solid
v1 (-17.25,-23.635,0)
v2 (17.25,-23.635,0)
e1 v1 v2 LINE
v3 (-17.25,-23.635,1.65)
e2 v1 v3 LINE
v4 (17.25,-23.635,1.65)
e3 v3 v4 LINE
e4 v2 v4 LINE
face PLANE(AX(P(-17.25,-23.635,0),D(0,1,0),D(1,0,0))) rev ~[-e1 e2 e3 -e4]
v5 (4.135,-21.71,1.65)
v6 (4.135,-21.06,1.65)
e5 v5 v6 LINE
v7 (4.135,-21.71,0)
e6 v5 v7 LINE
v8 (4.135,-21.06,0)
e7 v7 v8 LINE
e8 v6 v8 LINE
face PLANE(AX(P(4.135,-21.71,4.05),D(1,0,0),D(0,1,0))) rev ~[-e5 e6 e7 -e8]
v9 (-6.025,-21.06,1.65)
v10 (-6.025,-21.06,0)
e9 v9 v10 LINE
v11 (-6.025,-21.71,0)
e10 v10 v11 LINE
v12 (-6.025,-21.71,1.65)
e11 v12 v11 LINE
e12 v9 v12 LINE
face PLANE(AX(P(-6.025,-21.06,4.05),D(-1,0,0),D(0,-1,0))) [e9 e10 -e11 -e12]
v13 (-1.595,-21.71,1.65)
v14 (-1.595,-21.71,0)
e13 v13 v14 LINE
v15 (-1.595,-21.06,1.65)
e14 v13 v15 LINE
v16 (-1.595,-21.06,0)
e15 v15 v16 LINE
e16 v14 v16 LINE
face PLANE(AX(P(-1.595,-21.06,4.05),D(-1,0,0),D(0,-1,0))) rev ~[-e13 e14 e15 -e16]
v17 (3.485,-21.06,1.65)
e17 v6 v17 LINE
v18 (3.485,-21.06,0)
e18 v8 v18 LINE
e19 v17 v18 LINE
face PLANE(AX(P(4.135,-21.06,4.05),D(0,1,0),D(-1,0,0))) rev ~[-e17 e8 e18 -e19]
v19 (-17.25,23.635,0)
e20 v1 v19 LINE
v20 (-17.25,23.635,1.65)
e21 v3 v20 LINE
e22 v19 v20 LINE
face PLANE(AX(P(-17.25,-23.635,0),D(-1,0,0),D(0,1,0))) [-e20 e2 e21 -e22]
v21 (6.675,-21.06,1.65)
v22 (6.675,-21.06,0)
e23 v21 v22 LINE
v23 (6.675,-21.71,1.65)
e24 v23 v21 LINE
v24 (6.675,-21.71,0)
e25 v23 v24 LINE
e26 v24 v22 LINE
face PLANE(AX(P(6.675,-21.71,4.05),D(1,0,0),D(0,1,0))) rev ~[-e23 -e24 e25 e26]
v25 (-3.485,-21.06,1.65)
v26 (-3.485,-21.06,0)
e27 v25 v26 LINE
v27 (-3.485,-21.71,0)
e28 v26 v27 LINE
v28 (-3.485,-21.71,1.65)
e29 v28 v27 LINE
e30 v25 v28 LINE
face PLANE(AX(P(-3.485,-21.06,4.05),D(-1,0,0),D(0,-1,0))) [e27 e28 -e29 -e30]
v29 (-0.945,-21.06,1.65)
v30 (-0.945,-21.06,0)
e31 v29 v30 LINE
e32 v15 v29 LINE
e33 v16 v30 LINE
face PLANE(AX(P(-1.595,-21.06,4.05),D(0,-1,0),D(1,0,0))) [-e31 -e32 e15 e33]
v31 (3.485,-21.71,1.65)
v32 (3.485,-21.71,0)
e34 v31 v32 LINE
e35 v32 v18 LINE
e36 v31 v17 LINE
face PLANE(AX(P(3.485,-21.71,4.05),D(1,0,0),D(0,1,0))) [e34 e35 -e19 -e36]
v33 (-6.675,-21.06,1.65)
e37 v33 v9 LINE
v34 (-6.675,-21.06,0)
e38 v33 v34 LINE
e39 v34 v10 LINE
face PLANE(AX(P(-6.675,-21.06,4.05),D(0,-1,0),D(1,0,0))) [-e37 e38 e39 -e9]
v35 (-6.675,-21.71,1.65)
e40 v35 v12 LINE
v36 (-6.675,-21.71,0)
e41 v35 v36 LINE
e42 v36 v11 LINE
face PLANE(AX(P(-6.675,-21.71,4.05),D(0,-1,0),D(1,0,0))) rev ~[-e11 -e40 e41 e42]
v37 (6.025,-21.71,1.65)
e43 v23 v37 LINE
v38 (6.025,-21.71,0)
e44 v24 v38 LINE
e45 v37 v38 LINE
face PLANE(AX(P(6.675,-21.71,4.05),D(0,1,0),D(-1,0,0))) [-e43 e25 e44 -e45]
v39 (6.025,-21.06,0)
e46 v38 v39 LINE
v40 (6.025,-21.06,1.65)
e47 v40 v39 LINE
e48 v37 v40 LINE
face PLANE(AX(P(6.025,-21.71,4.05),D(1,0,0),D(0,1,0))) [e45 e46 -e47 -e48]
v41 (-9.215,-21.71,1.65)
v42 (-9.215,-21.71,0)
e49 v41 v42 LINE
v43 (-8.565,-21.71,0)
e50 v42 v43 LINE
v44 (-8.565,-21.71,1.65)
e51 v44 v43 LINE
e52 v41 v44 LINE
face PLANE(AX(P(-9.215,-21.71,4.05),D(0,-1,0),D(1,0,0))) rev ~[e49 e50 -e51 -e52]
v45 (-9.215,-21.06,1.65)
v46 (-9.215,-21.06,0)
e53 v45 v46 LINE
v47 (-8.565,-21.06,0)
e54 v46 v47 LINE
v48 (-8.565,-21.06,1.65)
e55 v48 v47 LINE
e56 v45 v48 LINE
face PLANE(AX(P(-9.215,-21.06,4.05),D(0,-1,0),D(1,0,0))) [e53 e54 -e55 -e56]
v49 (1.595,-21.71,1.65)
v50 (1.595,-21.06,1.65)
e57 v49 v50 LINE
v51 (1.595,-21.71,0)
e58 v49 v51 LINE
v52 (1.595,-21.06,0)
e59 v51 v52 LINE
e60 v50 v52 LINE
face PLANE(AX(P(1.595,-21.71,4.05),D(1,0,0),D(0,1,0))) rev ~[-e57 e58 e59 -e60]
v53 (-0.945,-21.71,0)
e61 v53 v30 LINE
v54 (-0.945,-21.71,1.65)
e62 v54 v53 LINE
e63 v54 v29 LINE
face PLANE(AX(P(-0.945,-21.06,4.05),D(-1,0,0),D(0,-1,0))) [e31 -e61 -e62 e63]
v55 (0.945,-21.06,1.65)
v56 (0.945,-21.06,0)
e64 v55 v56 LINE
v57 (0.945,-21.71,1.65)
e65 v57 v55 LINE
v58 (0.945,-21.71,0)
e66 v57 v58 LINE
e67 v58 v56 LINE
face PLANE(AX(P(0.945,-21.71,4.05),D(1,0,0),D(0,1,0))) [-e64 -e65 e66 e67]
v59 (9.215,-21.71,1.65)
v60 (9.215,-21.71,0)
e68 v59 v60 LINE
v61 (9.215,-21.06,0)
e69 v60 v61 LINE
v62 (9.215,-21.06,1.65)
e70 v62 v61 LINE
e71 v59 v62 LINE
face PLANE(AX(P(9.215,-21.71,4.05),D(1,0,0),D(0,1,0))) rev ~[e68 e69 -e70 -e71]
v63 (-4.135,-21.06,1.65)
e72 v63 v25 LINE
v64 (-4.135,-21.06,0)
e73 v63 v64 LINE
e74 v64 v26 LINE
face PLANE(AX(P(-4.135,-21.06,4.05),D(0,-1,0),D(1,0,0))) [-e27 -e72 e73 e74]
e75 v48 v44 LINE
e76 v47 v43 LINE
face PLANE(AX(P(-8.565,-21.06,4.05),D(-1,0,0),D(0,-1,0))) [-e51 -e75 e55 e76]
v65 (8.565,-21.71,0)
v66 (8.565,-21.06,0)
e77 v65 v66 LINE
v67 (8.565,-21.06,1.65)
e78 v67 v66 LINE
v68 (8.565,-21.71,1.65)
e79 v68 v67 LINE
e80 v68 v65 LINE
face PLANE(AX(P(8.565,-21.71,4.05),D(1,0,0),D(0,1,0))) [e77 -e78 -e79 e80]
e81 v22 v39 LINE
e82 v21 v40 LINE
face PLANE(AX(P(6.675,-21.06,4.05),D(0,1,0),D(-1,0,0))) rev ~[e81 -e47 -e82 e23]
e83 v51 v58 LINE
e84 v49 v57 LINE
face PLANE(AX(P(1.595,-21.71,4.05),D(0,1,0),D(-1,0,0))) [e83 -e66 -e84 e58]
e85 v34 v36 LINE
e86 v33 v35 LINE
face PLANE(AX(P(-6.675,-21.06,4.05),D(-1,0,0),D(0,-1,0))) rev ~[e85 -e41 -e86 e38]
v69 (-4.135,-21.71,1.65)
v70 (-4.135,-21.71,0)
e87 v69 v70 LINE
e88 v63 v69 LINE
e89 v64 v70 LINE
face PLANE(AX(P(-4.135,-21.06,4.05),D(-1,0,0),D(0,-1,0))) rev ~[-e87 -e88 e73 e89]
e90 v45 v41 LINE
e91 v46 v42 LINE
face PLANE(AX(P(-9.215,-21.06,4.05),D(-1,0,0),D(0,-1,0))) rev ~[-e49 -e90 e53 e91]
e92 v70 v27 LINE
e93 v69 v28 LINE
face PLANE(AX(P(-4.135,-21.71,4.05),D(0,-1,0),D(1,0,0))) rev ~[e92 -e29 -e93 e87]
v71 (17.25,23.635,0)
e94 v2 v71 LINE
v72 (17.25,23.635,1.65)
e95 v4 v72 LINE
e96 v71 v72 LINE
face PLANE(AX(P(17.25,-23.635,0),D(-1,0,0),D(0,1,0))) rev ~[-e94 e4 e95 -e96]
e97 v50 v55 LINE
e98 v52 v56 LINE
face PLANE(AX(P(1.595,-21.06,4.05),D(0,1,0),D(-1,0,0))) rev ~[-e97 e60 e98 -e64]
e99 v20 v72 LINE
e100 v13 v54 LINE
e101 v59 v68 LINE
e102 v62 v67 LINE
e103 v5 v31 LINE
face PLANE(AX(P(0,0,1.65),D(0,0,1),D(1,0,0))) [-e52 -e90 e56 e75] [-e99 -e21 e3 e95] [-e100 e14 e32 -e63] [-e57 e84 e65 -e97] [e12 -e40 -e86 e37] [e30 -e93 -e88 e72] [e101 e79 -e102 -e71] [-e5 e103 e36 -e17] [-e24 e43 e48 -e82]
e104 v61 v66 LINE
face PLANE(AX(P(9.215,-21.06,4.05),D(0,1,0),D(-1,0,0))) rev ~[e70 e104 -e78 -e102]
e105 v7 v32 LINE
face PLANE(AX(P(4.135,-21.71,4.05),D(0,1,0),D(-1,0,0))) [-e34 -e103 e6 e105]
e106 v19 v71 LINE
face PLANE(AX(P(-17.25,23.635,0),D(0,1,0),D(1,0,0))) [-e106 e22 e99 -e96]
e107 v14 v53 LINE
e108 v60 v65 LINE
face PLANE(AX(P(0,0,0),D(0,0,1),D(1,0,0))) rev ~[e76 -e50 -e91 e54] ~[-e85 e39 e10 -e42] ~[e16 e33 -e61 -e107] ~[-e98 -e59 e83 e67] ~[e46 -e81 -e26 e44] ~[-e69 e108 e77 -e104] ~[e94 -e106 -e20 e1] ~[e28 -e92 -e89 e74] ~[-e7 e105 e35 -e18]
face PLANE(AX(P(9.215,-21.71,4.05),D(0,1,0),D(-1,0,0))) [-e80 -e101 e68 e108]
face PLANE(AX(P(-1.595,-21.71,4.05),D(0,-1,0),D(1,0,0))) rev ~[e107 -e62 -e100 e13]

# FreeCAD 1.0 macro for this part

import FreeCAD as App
import Part
import Sketcher

V = App.Vector
Q = App.Units.Quantity


def add_polygon(sketch, points):
    """Adds a closed chain of lines whose ends are joined by coincident constraints."""
    first, n = sketch.GeometryCount, len(points)
    for a, b in zip(points, points[1:] + points[:1]):
        sketch.addGeometry(Part.LineSegment(App.Vector(*a, 0), App.Vector(*b, 0)), False)
    for i in range(n):
        sketch.addConstraint(Sketcher.Constraint("Coincident", first + i, 2, first + (i + 1) % n, 1))

doc = App.newDocument("Part")
body = doc.addObject("PartDesign::Body", "Body")

# Sketch on XY plane
sketch1 = body.newObject("Sketcher::SketchObject", "Sketch")
sketch1.AttachmentSupport = (doc.getObject("XY_Plane"), [""])
sketch1.MapMode = "FlatFace"
add_polygon(sketch1, [(-17.25, 23.635), (-17.25, -23.635), (17.25, -23.635), (17.25, 23.635)])  # lines 0-3
sketch1.addConstraint([
    Sketcher.Constraint("Vertical", 0),
    Sketcher.Constraint("Horizontal", 1),
    Sketcher.Constraint("Vertical", 2),
    Sketcher.Constraint("Horizontal", 3),
    Sketcher.Constraint("Symmetric", 0, 2, 2, 2, -1, 1),
    Sketcher.Constraint("DistanceX", 1, 1, 1, 2, Q("34.5 mm")),
    Sketcher.Constraint("DistanceY", 0, 2, 0, 1, Q("47.27 mm")),
])
pad1 = body.newObject("PartDesign::Pad", "Pad")
pad1.Profile = sketch1
pad1.Length = 1.65

# Sketch on XY plane
sketch2 = body.newObject("Sketcher::SketchObject", "Sketch001")
sketch2.AttachmentSupport = (doc.getObject("XY_Plane"), [""])
sketch2.MapMode = "FlatFace"
sketch2.AttachmentOffset = App.Placement(V(0, 0, 3.05), App.Rotation())
add_polygon(sketch2, [(1.595, -21.06), (1.595, -21.71), (0.945, -21.71), (0.945, -21.06)])  # lines 0-3
sketch2.addConstraint([
    Sketcher.Constraint("Vertical", 0),
    Sketcher.Constraint("Horizontal", 1),
    Sketcher.Constraint("Vertical", 2),
    Sketcher.Constraint("Horizontal", 3),
    Sketcher.Constraint("Equal", 3, 0),
    Sketcher.Constraint("DistanceX", 1, 2, 1, 1, Q("0.65 mm")),
    Sketcher.Constraint("DistanceY", 0, 2, -1, 1, Q("21.71 mm")),
    Sketcher.Constraint("DistanceX", -1, 1, 0, 2, Q("1.595 mm")),
])
pad2 = body.newObject("PartDesign::Pad", "Pad001")
pad2.Profile = sketch2
pad2.Length = 11.55
pad2.Reversed = True

# Sketch on XY plane
sketch3 = body.newObject("Sketcher::SketchObject", "Sketch002")
sketch3.AttachmentSupport = (doc.getObject("XY_Plane"), [""])
sketch3.MapMode = "FlatFace"
sketch3.AttachmentOffset = App.Placement(V(0, 0, 4.05), App.Rotation())
add_polygon(sketch3, [(1.595, -21.06), (1.595, -21.71), (0.945, -21.71), (0.945, -21.06)])  # lines 0-3
sketch3.addConstraint([
    Sketcher.Constraint("Vertical", 0),
    Sketcher.Constraint("Horizontal", 1),
    Sketcher.Constraint("Vertical", 2),
    Sketcher.Constraint("Horizontal", 3),
    Sketcher.Constraint("Equal", 3, 0),
    Sketcher.Constraint("DistanceX", 1, 2, 1, 1, Q("0.65 mm")),
    Sketcher.Constraint("DistanceY", 0, 2, -1, 1, Q("21.71 mm")),
    Sketcher.Constraint("DistanceX", -1, 1, 0, 2, Q("1.595 mm")),
])
pocket1 = body.newObject("PartDesign::Pocket", "Pocket")
pocket1.Profile = sketch3
pocket1.Length = 13.55
doc.recompute()

linearpattern = body.newObject("PartDesign::LinearPattern", "LinearPattern")
linearpattern.Originals = [pocket1]
linearpattern.Direction = (doc.getObject("X_Axis"), [""])
linearpattern.Mode = "offset"
linearpattern.Offset = 2.54
linearpattern.Occurrences = 4
body.Tip = linearpattern
doc.recompute()

mirrored = body.newObject("PartDesign::Mirrored", "Mirrored")
mirrored.Originals = [pad2]
mirrored.MirrorPlane = (doc.getObject("YZ_Plane"), [""])
body.Tip = mirrored

# Sketch on XY plane
sketch4 = body.newObject("Sketcher::SketchObject", "Sketch003")
sketch4.AttachmentSupport = (doc.getObject("XY_Plane"), [""])
sketch4.MapMode = "FlatFace"
sketch4.AttachmentOffset = App.Placement(V(0, 0, 4.05), App.Rotation())
add_polygon(sketch4, [(-4.135, -21.71), (-4.135, -21.06), (-3.485, -21.06), (-3.485, -21.71)])  # lines 0-3
sketch4.addConstraint([
    Sketcher.Constraint("Vertical", 0),
    Sketcher.Constraint("Horizontal", 1),
    Sketcher.Constraint("Vertical", 2),
    Sketcher.Constraint("Horizontal", 3),
    Sketcher.Constraint("Equal", 3, 0),
    Sketcher.Constraint("DistanceX", 1, 1, 1, 2, Q("0.65 mm")),
    Sketcher.Constraint("DistanceY", 0, 2, -1, 1, Q("21.06 mm")),
    Sketcher.Constraint("DistanceX", 0, 2, -1, 1, Q("4.135 mm")),
])
pocket2 = body.newObject("PartDesign::Pocket", "Pocket001")
pocket2.Profile = sketch4
pocket2.Length = 13.55

# Sketch on XY plane
sketch5 = body.newObject("Sketcher::SketchObject", "Sketch004")
sketch5.AttachmentSupport = (doc.getObject("XY_Plane"), [""])
sketch5.MapMode = "FlatFace"
sketch5.AttachmentOffset = App.Placement(V(0, 0, 4.05), App.Rotation())
add_polygon(sketch5, [(-6.675, -21.71), (-6.675, -21.06), (-6.025, -21.06), (-6.025, -21.71)])  # lines 0-3
sketch5.addConstraint([
    Sketcher.Constraint("Vertical", 0),
    Sketcher.Constraint("Horizontal", 1),
    Sketcher.Constraint("Vertical", 2),
    Sketcher.Constraint("Horizontal", 3),
    Sketcher.Constraint("Equal", 3, 0),
    Sketcher.Constraint("DistanceX", 1, 1, 1, 2, Q("0.65 mm")),
    Sketcher.Constraint("DistanceY", 0, 2, -1, 1, Q("21.06 mm")),
    Sketcher.Constraint("DistanceX", 0, 2, -1, 1, Q("6.675 mm")),
])
pocket3 = body.newObject("PartDesign::Pocket", "Pocket002")
pocket3.Profile = sketch5
pocket3.Length = 13.55

# Sketch on XY plane
sketch6 = body.newObject("Sketcher::SketchObject", "Sketch005")
sketch6.AttachmentSupport = (doc.getObject("XY_Plane"), [""])
sketch6.MapMode = "FlatFace"
sketch6.AttachmentOffset = App.Placement(V(0, 0, 4.05), App.Rotation())
add_polygon(sketch6, [(-9.215, -21.71), (-9.215, -21.06), (-8.565, -21.06), (-8.565, -21.71)])  # lines 0-3
sketch6.addConstraint([
    Sketcher.Constraint("Vertical", 0),
    Sketcher.Constraint("Horizontal", 1),
    Sketcher.Constraint("Vertical", 2),
    Sketcher.Constraint("Horizontal", 3),
    Sketcher.Constraint("Equal", 3, 0),
    Sketcher.Constraint("DistanceX", 1, 1, 1, 2, Q("0.65 mm")),
    Sketcher.Constraint("DistanceY", 0, 2, -1, 1, Q("21.06 mm")),
    Sketcher.Constraint("DistanceX", 0, 2, -1, 1, Q("9.215 mm")),
])
pocket4 = body.newObject("PartDesign::Pocket", "Pocket003")
pocket4.Profile = sketch6
pocket4.Length = 13.55

# Sketch on XY plane
sketch7 = body.newObject("Sketcher::SketchObject", "Sketch006")
sketch7.AttachmentSupport = (doc.getObject("XY_Plane"), [""])
sketch7.MapMode = "FlatFace"
sketch7.AttachmentOffset = App.Placement(V(0, 0, 4.05), App.Rotation())
add_polygon(sketch7, [(-1.595, -21.71), (-1.595, -21.06), (-0.945, -21.06), (-0.945, -21.71)])  # lines 0-3
sketch7.addConstraint([
    Sketcher.Constraint("Vertical", 0),
    Sketcher.Constraint("Horizontal", 1),
    Sketcher.Constraint("Vertical", 2),
    Sketcher.Constraint("Horizontal", 3),
    Sketcher.Constraint("Equal", 3, 0),
    Sketcher.Constraint("DistanceX", 1, 1, 1, 2, Q("0.65 mm")),
    Sketcher.Constraint("DistanceY", 0, 2, -1, 1, Q("21.06 mm")),
    Sketcher.Constraint("DistanceX", 0, 2, -1, 1, Q("1.595 mm")),
])
pocket5 = body.newObject("PartDesign::Pocket", "Pocket004")
pocket5.Profile = sketch7
pocket5.Length = 13.55

doc.recompute()
